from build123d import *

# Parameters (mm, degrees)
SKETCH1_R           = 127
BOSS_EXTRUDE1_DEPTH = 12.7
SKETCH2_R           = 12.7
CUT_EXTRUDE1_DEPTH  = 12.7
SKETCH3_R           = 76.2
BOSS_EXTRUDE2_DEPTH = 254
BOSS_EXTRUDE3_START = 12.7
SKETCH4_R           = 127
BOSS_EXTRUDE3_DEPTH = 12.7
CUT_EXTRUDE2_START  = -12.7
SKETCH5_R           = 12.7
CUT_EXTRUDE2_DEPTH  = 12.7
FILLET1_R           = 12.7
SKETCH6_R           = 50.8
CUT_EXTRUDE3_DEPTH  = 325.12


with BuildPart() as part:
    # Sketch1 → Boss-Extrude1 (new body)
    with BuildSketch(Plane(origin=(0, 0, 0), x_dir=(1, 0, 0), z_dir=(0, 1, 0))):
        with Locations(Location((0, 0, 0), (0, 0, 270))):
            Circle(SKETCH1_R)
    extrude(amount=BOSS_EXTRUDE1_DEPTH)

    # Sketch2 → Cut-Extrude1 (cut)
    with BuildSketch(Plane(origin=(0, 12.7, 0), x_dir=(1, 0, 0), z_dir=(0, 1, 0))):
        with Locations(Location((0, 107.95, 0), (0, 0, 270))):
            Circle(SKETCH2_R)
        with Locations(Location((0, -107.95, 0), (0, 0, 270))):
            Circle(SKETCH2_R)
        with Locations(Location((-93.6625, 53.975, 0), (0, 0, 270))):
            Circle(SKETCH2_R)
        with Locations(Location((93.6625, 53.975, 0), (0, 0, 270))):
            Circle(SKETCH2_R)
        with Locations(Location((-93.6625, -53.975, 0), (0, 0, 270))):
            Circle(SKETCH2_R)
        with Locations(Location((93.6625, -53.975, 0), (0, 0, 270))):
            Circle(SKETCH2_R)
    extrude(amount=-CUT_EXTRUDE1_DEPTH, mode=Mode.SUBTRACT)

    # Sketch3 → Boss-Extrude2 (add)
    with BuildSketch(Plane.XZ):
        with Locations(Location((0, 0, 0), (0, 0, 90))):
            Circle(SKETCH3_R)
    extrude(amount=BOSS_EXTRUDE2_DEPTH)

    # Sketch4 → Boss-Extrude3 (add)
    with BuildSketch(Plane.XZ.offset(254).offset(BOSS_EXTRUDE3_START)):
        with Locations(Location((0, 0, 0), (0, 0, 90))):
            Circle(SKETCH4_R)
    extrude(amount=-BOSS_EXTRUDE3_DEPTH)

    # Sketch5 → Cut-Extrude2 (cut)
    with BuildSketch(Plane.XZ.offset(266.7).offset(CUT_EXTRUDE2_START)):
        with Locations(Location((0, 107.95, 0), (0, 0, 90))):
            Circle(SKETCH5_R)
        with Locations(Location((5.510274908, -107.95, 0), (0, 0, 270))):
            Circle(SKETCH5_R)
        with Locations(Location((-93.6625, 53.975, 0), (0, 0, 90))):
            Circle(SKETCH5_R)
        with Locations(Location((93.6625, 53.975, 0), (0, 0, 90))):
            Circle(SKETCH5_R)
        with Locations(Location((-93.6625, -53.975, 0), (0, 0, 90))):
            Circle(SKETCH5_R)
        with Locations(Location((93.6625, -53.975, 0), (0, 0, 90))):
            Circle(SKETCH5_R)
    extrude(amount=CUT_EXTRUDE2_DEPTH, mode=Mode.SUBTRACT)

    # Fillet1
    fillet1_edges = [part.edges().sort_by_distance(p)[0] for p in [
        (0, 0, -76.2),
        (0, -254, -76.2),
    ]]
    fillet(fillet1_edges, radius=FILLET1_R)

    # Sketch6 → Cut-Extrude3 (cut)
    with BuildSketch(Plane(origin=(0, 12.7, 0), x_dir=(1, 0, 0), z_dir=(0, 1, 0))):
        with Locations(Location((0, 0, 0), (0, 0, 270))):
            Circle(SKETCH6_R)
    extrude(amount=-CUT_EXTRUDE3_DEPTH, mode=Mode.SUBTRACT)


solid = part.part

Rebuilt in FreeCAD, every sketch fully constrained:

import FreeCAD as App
import Part
import Sketcher

V = App.Vector
Q = App.Units.Quantity


def edges_at(feature, points):
    """Names of the edges that pass closest to the given points."""
    edges = feature.Shape.Edges
    near = lambda p: min(range(len(edges)), key=lambda i: edges[i].distToShape(Part.Vertex(*p))[0])
    return sorted({f"Edge{near(p) + 1}" for p in points})

doc = App.newDocument("Part")
body = doc.addObject("PartDesign::Body", "Body")

# Sketch on XZ plane
sketch1 = body.newObject("Sketcher::SketchObject", "Sketch")
sketch1.AttachmentSupport = (doc.getObject("XZ_Plane"), [""])
sketch1.MapMode = "FlatFace"
sketch1.addGeometry(Part.Circle(V(0, 0, 0), V(0, 0, 1), 127), False)
sketch1.addConstraint([
    Sketcher.Constraint("Coincident", 0, 3, -1, 1),
    Sketcher.Constraint("Diameter", 0, Q("10 in")),
])
pad1 = body.newObject("PartDesign::Pad", "Pad")
pad1.Profile = sketch1
pad1.Length = Q("0.5 in")
pad1.Reversed = True

# Sketch on XZ plane
sketch2 = body.newObject("Sketcher::SketchObject", "Sketch001")
sketch2.AttachmentSupport = (doc.getObject("XZ_Plane"), [""])
sketch2.MapMode = "FlatFace"
sketch2.AttachmentOffset = App.Placement(V(0, 0, -0.5 * 25.4), App.Rotation())
sketch2.addGeometry([
    Part.Circle(V(0, -108, 0), V(0, 0, 1), 13),  # 0
    Part.Circle(V(0, 108, 0), V(0, 0, 1), 13),  # 1
    Part.Circle(V(-94, -54, 0), V(0, 0, 1), 13),  # 2
    Part.Circle(V(94, -54, 0), V(0, 0, 1), 13),  # 3
    Part.Circle(V(-94, 54, 0), V(0, 0, 1), 13),  # 4
    Part.Circle(V(94, 54, 0), V(0, 0, 1), 13),  # 5
], False)
sketch2.addConstraint([
    Sketcher.Constraint("Equal", 0, 1),
    Sketcher.Constraint("Equal", 1, 2),
    Sketcher.Constraint("Equal", 2, 3),
    Sketcher.Constraint("Equal", 3, 4),
    Sketcher.Constraint("Equal", 4, 5),
    Sketcher.Constraint("Symmetric", 0, 3, 1, 3, -1, 1),
    Sketcher.Constraint("Symmetric", 3, 3, 4, 3, -1, 1),
    Sketcher.Constraint("Symmetric", 2, 3, 5, 3, -1, 1),
    Sketcher.Constraint("Symmetric", 2, 3, 3, 3, -2),
    Sketcher.Constraint("PointOnObject", 0, 3, -2),
    Sketcher.Constraint("Diameter", 0, Q("1 in")),
    Sketcher.Constraint("DistanceY", 0, 3, 1, 3, Q("8.5 in")),
    Sketcher.Constraint("DistanceY", 2, 3, 4, 3, Q("4.25 in")),
    Sketcher.Constraint("DistanceX", 2, 3, -1, 1, Q("3.6875 in")),
])
pocket1 = body.newObject("PartDesign::Pocket", "Pocket")
pocket1.Profile = sketch2
pocket1.Length = Q("0.5 in")
pocket1.Reversed = True

# Sketch on XZ plane
sketch3 = body.newObject("Sketcher::SketchObject", "Sketch002")
sketch3.AttachmentSupport = (doc.getObject("XZ_Plane"), [""])
sketch3.MapMode = "FlatFace"
sketch3.addGeometry(Part.Circle(V(0, 0, 0), V(0, 0, 1), 76), False)
sketch3.addConstraint([
    Sketcher.Constraint("Coincident", 0, 3, -1, 1),
    Sketcher.Constraint("Diameter", 0, Q("6 in")),
])
pad2 = body.newObject("PartDesign::Pad", "Pad001")
pad2.Profile = sketch3
pad2.Length = Q("10 in")

# Sketch on XZ plane
sketch4 = body.newObject("Sketcher::SketchObject", "Sketch003")
sketch4.AttachmentSupport = (doc.getObject("XZ_Plane"), [""])
sketch4.MapMode = "FlatFace"
sketch4.AttachmentOffset = App.Placement(V(0, 0, 10.5 * 25.4), App.Rotation())
sketch4.addGeometry(Part.Circle(V(0, 0, 0), V(0, 0, 1), 127), False)
sketch4.addConstraint([
    Sketcher.Constraint("Coincident", 0, 3, -1, 1),
    Sketcher.Constraint("Diameter", 0, Q("10 in")),
])
pad3 = body.newObject("PartDesign::Pad", "Pad002")
pad3.Profile = sketch4
pad3.Length = Q("0.5 in")
pad3.Reversed = True

# Sketch on XZ plane
sketch5 = body.newObject("Sketcher::SketchObject", "Sketch004")
sketch5.AttachmentSupport = (doc.getObject("XZ_Plane"), [""])
sketch5.MapMode = "FlatFace"
sketch5.AttachmentOffset = App.Placement(V(0, 0, 10 * 25.4), App.Rotation())
sketch5.addGeometry([
    Part.Circle(V(0, 108, 0), V(0, 0, 1), 13),  # 0
    Part.Circle(V(6, -108, 0), V(0, 0, 1), 13),  # 1
    Part.Circle(V(-94, 54, 0), V(0, 0, 1), 13),  # 2
    Part.Circle(V(94, 54, 0), V(0, 0, 1), 13),  # 3
    Part.Circle(V(-94, -54, 0), V(0, 0, 1), 13),  # 4
    Part.Circle(V(94, -54, 0), V(0, 0, 1), 13),  # 5
], False)
sketch5.addConstraint([
    Sketcher.Constraint("Equal", 0, 1),
    Sketcher.Constraint("Equal", 1, 2),
    Sketcher.Constraint("Equal", 2, 3),
    Sketcher.Constraint("Equal", 3, 4),
    Sketcher.Constraint("Equal", 4, 5),
    Sketcher.Constraint("Symmetric", 3, 3, 4, 3, -1, 1),
    Sketcher.Constraint("Symmetric", 2, 3, 5, 3, -1, 1),
    Sketcher.Constraint("Symmetric", 2, 3, 3, 3, -2),
    Sketcher.Constraint("PointOnObject", 0, 3, -2),
    Sketcher.Constraint("Diameter", 0, Q("1 in")),
    Sketcher.Constraint("DistanceY", 1, 3, 0, 3, Q("8.5 in")),
    Sketcher.Constraint("DistanceY", -1, 1, 0, 3, Q("4.25 in")),
    Sketcher.Constraint("DistanceY", 4, 3, 2, 3, Q("4.25 in")),
    Sketcher.Constraint("DistanceX", 2, 3, -1, 1, Q("3.6875 in")),
    Sketcher.Constraint("DistanceX", -1, 1, 1, 3, Q("5.510275 mm")),
])
pocket2 = body.newObject("PartDesign::Pocket", "Pocket001")
pocket2.Profile = sketch5
pocket2.Length = Q("0.5 in")
pocket2.Reversed = True
doc.recompute()

fillet = body.newObject("PartDesign::Fillet", "Fillet")
fillet.Base = (pocket2, edges_at(pocket2, [(0, 0, -76.2), (0, -254, -76.2)]))
fillet.Radius = Q("0.5 in")

# Sketch on XZ plane
sketch6 = body.newObject("Sketcher::SketchObject", "Sketch005")
sketch6.AttachmentSupport = (doc.getObject("XZ_Plane"), [""])
sketch6.MapMode = "FlatFace"
sketch6.AttachmentOffset = App.Placement(V(0, 0, -0.5 * 25.4), App.Rotation())
sketch6.addGeometry(Part.Circle(V(0, 0, 0), V(0, 0, 1), 51), False)
sketch6.addConstraint([
    Sketcher.Constraint("Coincident", 0, 3, -1, 1),
    Sketcher.Constraint("Diameter", 0, Q("4 in")),
])
pocket3 = body.newObject("PartDesign::Pocket", "Pocket002")
pocket3.Profile = sketch6
pocket3.Length = Q("12.8 in")
pocket3.Reversed = True

doc.recompute()
